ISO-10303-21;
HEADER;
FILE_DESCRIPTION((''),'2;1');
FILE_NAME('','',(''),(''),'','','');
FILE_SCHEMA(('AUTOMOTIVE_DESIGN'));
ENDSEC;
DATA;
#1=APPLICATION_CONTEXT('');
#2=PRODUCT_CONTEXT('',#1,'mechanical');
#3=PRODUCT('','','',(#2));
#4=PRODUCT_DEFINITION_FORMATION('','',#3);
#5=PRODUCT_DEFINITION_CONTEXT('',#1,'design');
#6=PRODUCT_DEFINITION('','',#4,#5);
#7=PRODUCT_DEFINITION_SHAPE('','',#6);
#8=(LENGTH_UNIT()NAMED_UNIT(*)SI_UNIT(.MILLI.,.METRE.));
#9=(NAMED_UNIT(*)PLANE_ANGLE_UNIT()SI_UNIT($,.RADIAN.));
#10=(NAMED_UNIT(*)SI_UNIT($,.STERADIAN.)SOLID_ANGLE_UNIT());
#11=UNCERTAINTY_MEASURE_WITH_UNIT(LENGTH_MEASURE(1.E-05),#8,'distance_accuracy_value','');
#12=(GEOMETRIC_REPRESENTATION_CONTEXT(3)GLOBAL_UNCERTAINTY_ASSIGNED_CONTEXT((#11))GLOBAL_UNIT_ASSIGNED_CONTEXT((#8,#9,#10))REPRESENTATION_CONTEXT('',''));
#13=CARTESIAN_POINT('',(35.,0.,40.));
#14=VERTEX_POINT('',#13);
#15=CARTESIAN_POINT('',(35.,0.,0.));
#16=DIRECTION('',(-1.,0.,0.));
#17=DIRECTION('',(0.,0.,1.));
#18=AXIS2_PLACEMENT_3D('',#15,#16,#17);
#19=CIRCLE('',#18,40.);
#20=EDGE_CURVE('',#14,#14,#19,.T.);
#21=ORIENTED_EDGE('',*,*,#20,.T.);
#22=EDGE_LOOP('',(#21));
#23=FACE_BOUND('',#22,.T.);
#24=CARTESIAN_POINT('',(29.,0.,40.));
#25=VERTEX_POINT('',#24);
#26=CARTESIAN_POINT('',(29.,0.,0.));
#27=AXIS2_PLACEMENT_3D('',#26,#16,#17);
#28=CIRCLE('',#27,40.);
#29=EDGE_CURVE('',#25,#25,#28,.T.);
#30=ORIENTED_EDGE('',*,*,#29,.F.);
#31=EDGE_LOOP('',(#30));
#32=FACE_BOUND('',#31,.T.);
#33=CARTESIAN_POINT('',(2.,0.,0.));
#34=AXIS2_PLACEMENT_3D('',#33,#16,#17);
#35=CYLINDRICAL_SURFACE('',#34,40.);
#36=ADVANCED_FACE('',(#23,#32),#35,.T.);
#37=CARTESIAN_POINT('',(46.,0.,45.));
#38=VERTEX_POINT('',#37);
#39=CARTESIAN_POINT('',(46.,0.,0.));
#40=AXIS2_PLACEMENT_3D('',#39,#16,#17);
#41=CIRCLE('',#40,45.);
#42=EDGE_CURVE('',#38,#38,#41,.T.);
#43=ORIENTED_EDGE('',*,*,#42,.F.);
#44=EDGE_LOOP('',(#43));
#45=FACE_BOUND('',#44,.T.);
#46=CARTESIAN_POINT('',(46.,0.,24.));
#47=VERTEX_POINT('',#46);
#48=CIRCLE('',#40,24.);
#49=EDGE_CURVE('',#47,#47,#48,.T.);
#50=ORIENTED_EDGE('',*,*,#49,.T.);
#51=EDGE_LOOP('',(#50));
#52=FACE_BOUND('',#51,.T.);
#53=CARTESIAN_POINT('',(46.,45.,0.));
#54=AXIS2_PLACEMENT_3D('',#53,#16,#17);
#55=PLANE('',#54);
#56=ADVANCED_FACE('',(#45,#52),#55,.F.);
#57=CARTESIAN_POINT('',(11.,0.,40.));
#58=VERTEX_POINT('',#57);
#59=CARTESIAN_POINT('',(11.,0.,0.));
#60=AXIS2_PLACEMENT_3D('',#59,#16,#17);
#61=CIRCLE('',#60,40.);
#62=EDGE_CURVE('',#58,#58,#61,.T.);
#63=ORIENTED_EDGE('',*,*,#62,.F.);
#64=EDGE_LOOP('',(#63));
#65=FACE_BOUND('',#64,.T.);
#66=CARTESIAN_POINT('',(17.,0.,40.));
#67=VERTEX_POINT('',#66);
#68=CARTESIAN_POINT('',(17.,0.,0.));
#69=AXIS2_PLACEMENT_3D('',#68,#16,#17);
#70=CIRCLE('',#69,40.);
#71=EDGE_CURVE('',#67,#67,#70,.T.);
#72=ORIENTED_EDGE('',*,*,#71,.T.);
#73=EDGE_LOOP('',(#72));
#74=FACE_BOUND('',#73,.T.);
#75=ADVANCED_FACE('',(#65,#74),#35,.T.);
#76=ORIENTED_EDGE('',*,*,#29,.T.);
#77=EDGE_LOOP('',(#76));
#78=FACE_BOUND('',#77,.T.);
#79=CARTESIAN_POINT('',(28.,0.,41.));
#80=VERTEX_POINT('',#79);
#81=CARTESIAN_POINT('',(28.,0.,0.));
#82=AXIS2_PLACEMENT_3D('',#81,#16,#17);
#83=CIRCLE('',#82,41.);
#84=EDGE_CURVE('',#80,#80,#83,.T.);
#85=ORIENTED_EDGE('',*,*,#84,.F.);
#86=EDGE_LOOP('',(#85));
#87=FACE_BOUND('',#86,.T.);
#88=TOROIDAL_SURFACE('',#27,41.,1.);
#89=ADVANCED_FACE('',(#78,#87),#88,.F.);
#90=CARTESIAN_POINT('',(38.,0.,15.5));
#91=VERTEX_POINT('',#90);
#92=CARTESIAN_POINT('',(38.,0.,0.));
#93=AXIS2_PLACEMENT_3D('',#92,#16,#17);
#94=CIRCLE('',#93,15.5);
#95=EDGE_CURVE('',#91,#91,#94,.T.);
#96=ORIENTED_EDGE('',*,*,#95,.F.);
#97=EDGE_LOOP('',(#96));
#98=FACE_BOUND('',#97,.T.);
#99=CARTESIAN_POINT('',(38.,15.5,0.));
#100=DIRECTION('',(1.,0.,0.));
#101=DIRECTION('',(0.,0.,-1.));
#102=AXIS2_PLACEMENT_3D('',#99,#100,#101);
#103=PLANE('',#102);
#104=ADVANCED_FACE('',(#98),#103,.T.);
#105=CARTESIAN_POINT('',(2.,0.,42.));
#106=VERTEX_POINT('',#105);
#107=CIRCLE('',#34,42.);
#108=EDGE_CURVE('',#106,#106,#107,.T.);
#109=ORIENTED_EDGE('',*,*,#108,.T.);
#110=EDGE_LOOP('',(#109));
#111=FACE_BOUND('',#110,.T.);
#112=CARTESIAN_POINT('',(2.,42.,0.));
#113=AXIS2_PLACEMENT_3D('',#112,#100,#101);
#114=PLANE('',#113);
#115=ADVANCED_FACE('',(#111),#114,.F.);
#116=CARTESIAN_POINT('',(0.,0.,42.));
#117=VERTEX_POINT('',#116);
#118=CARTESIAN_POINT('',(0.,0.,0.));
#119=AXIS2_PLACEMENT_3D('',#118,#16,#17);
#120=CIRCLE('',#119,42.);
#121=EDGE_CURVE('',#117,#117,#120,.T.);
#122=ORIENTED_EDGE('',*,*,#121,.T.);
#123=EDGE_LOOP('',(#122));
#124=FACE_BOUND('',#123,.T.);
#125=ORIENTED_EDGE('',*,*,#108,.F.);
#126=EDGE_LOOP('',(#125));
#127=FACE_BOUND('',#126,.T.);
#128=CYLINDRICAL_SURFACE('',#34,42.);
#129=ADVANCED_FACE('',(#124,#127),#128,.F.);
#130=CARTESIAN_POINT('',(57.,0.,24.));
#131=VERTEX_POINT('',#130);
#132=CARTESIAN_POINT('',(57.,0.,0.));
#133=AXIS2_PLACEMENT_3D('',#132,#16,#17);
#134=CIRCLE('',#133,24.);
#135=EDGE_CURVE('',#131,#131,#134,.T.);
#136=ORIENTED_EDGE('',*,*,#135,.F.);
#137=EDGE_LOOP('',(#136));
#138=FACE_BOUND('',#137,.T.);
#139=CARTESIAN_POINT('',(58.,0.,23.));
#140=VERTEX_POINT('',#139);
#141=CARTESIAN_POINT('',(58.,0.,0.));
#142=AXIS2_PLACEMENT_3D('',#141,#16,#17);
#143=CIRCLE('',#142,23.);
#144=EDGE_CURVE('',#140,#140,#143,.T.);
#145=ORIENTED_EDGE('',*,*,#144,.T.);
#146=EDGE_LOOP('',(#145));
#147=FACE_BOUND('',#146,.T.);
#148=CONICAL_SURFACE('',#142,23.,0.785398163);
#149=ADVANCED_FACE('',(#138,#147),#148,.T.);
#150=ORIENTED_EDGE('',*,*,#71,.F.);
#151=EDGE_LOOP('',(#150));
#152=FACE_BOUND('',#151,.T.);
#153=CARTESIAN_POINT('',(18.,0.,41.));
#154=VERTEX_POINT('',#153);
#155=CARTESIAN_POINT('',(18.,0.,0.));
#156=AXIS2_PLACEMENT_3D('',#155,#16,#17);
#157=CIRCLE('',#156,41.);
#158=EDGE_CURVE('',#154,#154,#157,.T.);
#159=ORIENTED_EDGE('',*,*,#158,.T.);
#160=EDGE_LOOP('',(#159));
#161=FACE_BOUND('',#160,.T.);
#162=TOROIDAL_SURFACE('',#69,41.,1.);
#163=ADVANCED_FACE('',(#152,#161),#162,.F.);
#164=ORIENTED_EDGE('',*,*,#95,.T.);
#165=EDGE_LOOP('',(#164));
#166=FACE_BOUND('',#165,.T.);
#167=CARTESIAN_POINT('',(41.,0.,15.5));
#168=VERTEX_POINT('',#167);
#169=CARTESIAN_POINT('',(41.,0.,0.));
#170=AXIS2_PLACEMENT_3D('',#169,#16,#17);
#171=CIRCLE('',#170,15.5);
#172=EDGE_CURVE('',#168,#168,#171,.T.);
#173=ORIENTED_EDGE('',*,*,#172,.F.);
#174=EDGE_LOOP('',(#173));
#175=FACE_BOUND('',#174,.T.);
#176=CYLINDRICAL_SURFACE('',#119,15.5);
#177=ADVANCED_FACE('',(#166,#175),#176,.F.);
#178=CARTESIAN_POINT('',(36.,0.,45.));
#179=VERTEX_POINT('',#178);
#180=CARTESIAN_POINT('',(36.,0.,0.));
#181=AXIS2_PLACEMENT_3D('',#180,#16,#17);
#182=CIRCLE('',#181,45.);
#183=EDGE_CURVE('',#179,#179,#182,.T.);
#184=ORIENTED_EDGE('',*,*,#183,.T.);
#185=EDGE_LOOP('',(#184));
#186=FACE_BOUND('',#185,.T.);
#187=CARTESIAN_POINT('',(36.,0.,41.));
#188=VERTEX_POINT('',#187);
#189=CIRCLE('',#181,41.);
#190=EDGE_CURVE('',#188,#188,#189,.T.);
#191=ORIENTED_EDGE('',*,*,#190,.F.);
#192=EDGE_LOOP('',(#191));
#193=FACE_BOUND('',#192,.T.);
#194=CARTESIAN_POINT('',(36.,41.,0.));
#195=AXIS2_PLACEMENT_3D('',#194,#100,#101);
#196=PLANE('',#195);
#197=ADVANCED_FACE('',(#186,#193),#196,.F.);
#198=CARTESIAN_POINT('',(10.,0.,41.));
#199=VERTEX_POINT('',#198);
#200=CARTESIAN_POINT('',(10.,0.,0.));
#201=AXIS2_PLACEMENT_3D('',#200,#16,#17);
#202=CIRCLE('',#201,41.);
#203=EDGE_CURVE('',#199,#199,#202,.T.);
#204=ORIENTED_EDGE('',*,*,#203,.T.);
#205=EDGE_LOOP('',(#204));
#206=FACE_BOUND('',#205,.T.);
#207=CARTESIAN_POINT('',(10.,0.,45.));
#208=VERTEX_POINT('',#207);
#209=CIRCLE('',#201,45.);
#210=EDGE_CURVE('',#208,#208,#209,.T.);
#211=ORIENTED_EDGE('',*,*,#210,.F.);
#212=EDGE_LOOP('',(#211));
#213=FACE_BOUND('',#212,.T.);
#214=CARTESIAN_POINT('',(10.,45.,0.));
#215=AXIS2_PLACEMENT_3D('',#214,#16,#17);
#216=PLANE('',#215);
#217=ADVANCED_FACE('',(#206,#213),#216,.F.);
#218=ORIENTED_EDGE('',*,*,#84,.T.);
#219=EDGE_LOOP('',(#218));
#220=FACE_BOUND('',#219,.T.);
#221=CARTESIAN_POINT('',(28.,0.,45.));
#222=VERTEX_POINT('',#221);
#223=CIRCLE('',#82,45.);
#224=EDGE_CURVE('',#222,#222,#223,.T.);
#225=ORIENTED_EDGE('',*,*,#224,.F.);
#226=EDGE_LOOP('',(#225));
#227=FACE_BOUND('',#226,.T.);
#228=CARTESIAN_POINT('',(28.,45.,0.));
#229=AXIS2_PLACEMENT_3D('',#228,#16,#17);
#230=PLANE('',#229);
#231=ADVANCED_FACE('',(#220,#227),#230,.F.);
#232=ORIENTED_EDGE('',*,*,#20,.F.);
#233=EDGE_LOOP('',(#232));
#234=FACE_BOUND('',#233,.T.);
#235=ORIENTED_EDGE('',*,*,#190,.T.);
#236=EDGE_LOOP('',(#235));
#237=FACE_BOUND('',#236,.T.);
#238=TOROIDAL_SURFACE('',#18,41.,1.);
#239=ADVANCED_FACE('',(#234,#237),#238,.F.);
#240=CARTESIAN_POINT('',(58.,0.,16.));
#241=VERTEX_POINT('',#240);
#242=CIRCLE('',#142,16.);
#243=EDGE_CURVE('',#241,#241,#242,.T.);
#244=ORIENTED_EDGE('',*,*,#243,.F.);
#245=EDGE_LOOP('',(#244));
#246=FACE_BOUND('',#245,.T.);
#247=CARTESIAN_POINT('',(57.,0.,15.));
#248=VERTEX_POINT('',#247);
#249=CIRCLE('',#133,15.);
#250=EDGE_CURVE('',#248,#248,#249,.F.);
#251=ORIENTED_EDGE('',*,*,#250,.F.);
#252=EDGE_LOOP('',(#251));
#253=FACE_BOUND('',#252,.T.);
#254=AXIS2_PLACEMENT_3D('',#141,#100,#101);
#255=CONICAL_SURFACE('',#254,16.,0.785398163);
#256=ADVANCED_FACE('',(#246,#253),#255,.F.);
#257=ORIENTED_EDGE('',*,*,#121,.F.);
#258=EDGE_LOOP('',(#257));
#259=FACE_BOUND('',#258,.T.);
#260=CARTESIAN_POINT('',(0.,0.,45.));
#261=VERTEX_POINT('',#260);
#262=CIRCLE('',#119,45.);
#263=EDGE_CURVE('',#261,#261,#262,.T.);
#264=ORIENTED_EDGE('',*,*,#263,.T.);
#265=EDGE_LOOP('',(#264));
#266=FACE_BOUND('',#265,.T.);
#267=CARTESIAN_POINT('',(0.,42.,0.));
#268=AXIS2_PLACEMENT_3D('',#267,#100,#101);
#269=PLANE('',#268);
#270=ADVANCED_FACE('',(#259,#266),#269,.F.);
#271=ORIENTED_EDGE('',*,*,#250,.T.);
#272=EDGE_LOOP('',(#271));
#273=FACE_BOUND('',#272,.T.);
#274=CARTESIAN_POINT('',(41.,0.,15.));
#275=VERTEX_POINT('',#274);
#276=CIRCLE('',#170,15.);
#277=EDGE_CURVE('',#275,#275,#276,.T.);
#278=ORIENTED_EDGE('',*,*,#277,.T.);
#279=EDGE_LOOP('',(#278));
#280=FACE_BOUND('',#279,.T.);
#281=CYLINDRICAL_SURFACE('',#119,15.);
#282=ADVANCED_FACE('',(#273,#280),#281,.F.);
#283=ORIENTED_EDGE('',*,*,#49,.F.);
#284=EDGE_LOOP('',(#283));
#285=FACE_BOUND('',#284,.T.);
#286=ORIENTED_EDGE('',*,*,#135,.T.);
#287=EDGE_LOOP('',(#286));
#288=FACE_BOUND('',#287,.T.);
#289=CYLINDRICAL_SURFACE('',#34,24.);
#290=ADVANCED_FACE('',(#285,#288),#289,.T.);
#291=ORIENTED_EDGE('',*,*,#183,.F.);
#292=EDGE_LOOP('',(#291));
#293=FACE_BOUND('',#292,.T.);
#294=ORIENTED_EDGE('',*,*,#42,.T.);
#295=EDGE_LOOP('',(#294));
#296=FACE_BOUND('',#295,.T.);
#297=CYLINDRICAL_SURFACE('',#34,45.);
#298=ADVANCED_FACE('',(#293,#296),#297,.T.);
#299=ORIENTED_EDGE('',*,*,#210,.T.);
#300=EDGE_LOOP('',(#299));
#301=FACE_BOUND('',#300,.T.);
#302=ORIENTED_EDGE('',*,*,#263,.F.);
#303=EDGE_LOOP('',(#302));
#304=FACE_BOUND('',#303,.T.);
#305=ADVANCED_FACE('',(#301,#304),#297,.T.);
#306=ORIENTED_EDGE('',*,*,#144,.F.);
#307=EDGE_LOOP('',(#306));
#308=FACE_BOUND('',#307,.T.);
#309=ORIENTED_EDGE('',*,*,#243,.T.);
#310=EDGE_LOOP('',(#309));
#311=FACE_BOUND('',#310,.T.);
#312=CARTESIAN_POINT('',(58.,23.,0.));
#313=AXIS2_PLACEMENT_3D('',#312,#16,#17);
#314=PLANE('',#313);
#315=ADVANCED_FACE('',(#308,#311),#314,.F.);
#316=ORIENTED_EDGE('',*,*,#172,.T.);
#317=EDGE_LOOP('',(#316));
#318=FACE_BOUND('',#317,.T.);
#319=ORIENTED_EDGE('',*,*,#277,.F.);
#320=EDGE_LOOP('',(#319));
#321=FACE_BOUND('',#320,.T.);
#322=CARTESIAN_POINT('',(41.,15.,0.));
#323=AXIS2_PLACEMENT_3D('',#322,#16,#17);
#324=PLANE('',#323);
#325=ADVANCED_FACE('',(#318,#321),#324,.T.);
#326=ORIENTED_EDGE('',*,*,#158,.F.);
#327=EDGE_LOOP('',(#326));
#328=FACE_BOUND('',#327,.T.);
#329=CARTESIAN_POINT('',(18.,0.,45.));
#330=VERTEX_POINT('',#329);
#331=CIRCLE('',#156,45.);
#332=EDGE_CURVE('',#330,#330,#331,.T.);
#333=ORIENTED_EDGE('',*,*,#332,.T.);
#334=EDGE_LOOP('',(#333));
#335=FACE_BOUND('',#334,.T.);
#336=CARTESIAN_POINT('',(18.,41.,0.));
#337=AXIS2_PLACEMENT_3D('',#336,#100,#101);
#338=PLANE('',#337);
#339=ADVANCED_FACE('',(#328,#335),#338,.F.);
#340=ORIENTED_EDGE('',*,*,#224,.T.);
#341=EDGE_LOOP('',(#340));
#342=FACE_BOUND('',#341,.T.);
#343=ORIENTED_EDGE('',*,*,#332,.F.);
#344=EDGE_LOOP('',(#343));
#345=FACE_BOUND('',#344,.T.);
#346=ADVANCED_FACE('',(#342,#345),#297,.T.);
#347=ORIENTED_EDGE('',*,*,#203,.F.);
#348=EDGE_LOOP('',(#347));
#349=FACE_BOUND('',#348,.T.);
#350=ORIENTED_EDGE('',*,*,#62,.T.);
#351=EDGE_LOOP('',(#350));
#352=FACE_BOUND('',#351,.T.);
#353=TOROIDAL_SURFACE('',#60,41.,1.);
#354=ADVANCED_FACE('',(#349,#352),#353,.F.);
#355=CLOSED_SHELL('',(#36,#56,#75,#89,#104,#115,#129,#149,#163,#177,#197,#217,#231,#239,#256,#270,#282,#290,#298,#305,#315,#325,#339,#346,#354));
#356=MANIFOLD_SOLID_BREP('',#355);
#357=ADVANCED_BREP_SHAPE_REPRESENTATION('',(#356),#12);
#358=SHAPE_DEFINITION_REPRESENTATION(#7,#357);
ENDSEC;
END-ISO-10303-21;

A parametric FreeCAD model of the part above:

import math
import FreeCAD as App
import Part
import Sketcher

V = App.Vector


def edges_at(feature, points):
    """Names of the edges that pass closest to the given points."""
    edges = feature.Shape.Edges
    near = lambda p: min(range(len(edges)), key=lambda i: edges[i].distToShape(Part.Vertex(*p))[0])
    return sorted({f"Edge{near(p) + 1}" for p in points})

doc = App.newDocument("Part")
params = doc.addObject("Spreadsheet::Sheet", "Params")
for row, (alias, value) in enumerate([
    ("sketch1_radius", "1 mm"),
    ("sketch1_width", "2 mm"),
    ("sketch1_width2", "56 mm"),
    ("sketch1_width3", "11 mm"),
    ("sketch1_width4", "10 mm"),
    ("revolution_angle", "360 deg"),
    ("sketch2_width", "17 mm"),
    ("sketch2_width2", "3 mm"),
    ("sketch2_height", "15 mm"),
    ("sketch2_height2", "0.5 mm"),
    ("groove_angle", "360 deg"),
    ("chamfer_size", "1 mm"),
], start=1):
    params.set(f"A{row}", alias)
    params.set(f"B{row}", "=" + value)
    params.setAlias(f"B{row}", alias)

body = doc.addObject("PartDesign::Body", "Body")

sketch1 = body.newObject("Sketcher::SketchObject", "Sketch")
sketch1.AttachmentSupport = (doc.getObject("XY_Plane"), [""])
sketch1.MapMode = "FlatFace"
sketch1.addGeometry(Part.LineSegment(V(0, 45, 0), V(0, 42, 0)), False)
sketch1.addGeometry(Part.LineSegment(V(0, 42, 0), V(2, 42, 0)), False)
sketch1.addGeometry(Part.LineSegment(V(2, 42, 0), V(2, 0, 0)), False)
sketch1.addGeometry(Part.LineSegment(V(2, 0, 0), V(58, 0, 0)), False)
sketch1.addGeometry(Part.LineSegment(V(58, 0, 0), V(58, 23, 0)), False)
sketch1.addGeometry(Part.LineSegment(V(58, 23, 0), V(57, 24, 0)), False)
sketch1.addGeometry(Part.LineSegment(V(57, 24, 0), V(46, 24, 0)), False)
sketch1.addGeometry(Part.LineSegment(V(46, 24, 0), V(46, 45, 0)), False)
sketch1.addGeometry(Part.LineSegment(V(46, 45, 0), V(36, 45, 0)), False)
sketch1.addGeometry(Part.LineSegment(V(36, 45, 0), V(36, 41, 0)), False)
sketch1.addGeometry(Part.ArcOfCircle(Part.Circle(V(35, 41, 0), V(0, 0, 1), 1), math.radians(-90), math.radians(0)), False)
sketch1.addGeometry(Part.LineSegment(V(35, 40, 0), V(29, 40, 0)), False)
sketch1.addGeometry(Part.ArcOfCircle(Part.Circle(V(29, 41, 0), V(0, 0, 1), 1), math.radians(-180), math.radians(-90)), False)
sketch1.addGeometry(Part.LineSegment(V(28, 41, 0), V(28, 45, 0)), False)
sketch1.addGeometry(Part.LineSegment(V(28, 45, 0), V(18, 45, 0)), False)
sketch1.addGeometry(Part.LineSegment(V(18, 45, 0), V(18, 41, 0)), False)
sketch1.addGeometry(Part.ArcOfCircle(Part.Circle(V(17, 41, 0), V(0, 0, 1), 1), math.radians(-90), math.radians(0)), False)
sketch1.addGeometry(Part.LineSegment(V(17, 40, 0), V(11, 40, 0)), False)
sketch1.addGeometry(Part.ArcOfCircle(Part.Circle(V(11, 41, 0), V(0, 0, 1), 1), math.radians(-180), math.radians(-90)), False)
sketch1.addGeometry(Part.LineSegment(V(10, 41, 0), V(10, 45, 0)), False)
sketch1.addGeometry(Part.LineSegment(V(10, 45, 0), V(0, 45, 0)), False)
sketch1.addConstraint(Sketcher.Constraint("Coincident", 0, 2, 1, 1))
sketch1.addConstraint(Sketcher.Constraint("Coincident", 1, 2, 2, 1))
sketch1.addConstraint(Sketcher.Constraint("Coincident", 2, 2, 3, 1))
sketch1.addConstraint(Sketcher.Constraint("Coincident", 3, 2, 4, 1))
sketch1.addConstraint(Sketcher.Constraint("Coincident", 4, 2, 5, 1))
sketch1.addConstraint(Sketcher.Constraint("Coincident", 5, 2, 6, 1))
sketch1.addConstraint(Sketcher.Constraint("Coincident", 6, 2, 7, 1))
sketch1.addConstraint(Sketcher.Constraint("Coincident", 7, 2, 8, 1))
sketch1.addConstraint(Sketcher.Constraint("Coincident", 8, 2, 9, 1))
sketch1.addConstraint(Sketcher.Constraint("Tangent", 9, 2, 10, 2))
sketch1.addConstraint(Sketcher.Constraint("Tangent", 10, 1, 11, 1))
sketch1.addConstraint(Sketcher.Constraint("Tangent", 11, 2, 12, 2))
sketch1.addConstraint(Sketcher.Constraint("Tangent", 12, 1, 13, 1))
sketch1.addConstraint(Sketcher.Constraint("Coincident", 13, 2, 14, 1))
sketch1.addConstraint(Sketcher.Constraint("Coincident", 14, 2, 15, 1))
sketch1.addConstraint(Sketcher.Constraint("Tangent", 15, 2, 16, 2))
sketch1.addConstraint(Sketcher.Constraint("Tangent", 16, 1, 17, 1))
sketch1.addConstraint(Sketcher.Constraint("Tangent", 17, 2, 18, 2))
sketch1.addConstraint(Sketcher.Constraint("Tangent", 18, 1, 19, 1))
sketch1.addConstraint(Sketcher.Constraint("Coincident", 19, 2, 20, 1))
sketch1.addConstraint(Sketcher.Constraint("Coincident", 20, 2, 0, 1))
sketch1.addConstraint(Sketcher.Constraint("Vertical", 0))
sketch1.addConstraint(Sketcher.Constraint("Horizontal", 1))
sketch1.addConstraint(Sketcher.Constraint("Vertical", 2))
sketch1.addConstraint(Sketcher.Constraint("Horizontal", 3))
sketch1.addConstraint(Sketcher.Constraint("Vertical", 4))
sketch1.addConstraint(Sketcher.Constraint("Horizontal", 6))
sketch1.addConstraint(Sketcher.Constraint("Vertical", 7))
sketch1.addConstraint(Sketcher.Constraint("Horizontal", 8))
sketch1.addConstraint(Sketcher.Constraint("Vertical", 9))
sketch1.addConstraint(Sketcher.Constraint("Horizontal", 11))
sketch1.addConstraint(Sketcher.Constraint("Vertical", 13))
sketch1.addConstraint(Sketcher.Constraint("Horizontal", 14))
sketch1.addConstraint(Sketcher.Constraint("Vertical", 15))
sketch1.addConstraint(Sketcher.Constraint("Horizontal", 17))
sketch1.addConstraint(Sketcher.Constraint("Vertical", 19))
sketch1.addConstraint(Sketcher.Constraint("Horizontal", 20))
sketch1.addConstraint(Sketcher.Constraint("Equal", 10, 12))
sketch1.addConstraint(Sketcher.Constraint("Equal", 12, 16))
sketch1.addConstraint(Sketcher.Constraint("Equal", 16, 18))
sketch1.addConstraint(Sketcher.Constraint("PointOnObject", 0, 2, -2))
sketch1.addConstraint(Sketcher.Constraint("PointOnObject", 2, 2, -1))
sketch1.addConstraint(Sketcher.Constraint("Horizontal", 12, 3, 16, 3))
sketch1.addConstraint(Sketcher.Constraint("Horizontal", 8, 2, 13, 2))
sketch1.addConstraint(Sketcher.Constraint("Horizontal", 14, 2, 19, 2))
sketch1.addConstraint(Sketcher.Constraint("Equal", 8, 14))
sketch1.addConstraint(Sketcher.Constraint("Equal", 11, 17))
sketch1.addConstraint(Sketcher.Constraint("Equal", 14, 20))
sketch1.addConstraint(Sketcher.Constraint("Radius", 10, 1.0))
sketch1.addConstraint(Sketcher.Constraint("DistanceX", 1, 1, 1, 2, 2.0))
sketch1.addConstraint(Sketcher.Constraint("DistanceX", 3, 1, 3, 2, 56.0))
sketch1.addConstraint(Sketcher.Constraint("DistanceX", 6, 2, 6, 1, 11.0))
sketch1.addConstraint(Sketcher.Constraint("DistanceX", 8, 2, 8, 1, 10.0))
sketch1.addConstraint(Sketcher.Constraint("DistanceX", 11, 2, 11, 1, 6.0))
sketch1.addConstraint(Sketcher.Constraint("DistanceY", 0, 2, 0, 1, 3.0))
sketch1.addConstraint(Sketcher.Constraint("DistanceY", 2, 2, 2, 1, 42.0))
sketch1.addConstraint(Sketcher.Constraint("DistanceY", 4, 1, 4, 2, 23.0))
sketch1.addConstraint(Sketcher.Constraint("DistanceY", 7, 1, 7, 2, 21.0))
sketch1.addConstraint(Sketcher.Constraint("DistanceY", 9, 2, 9, 1, 4.0))
sketch1.setExpression("Constraints[48]", "Params.sketch1_radius")
sketch1.setExpression("Constraints[49]", "Params.sketch1_width")
sketch1.setExpression("Constraints[50]", "Params.sketch1_width2")
sketch1.setExpression("Constraints[51]", "Params.sketch1_width3")
sketch1.setExpression("Constraints[52]", "Params.sketch1_width4")
revolution = body.newObject("PartDesign::Revolution", "Revolution")
revolution.Profile = sketch1
revolution.ReferenceAxis = (sketch1, ["H_Axis"])
revolution.setExpression("Angle", "Params.revolution_angle")

sketch2 = body.newObject("Sketcher::SketchObject", "Sketch001")
sketch2.AttachmentSupport = (doc.getObject("XY_Plane"), [""])
sketch2.MapMode = "FlatFace"
sketch2.addGeometry(Part.LineSegment(V(58, 0, 0), V(58, 15, 0)), False)
sketch2.addGeometry(Part.LineSegment(V(58, 15, 0), V(41, 15, 0)), False)
sketch2.addGeometry(Part.LineSegment(V(41, 15, 0), V(41, 15.5, 0)), False)
sketch2.addGeometry(Part.LineSegment(V(41, 15.5, 0), V(38, 15.5, 0)), False)
sketch2.addGeometry(Part.LineSegment(V(38, 15.5, 0), V(38, 0, 0)), False)
sketch2.addGeometry(Part.LineSegment(V(38, 0, 0), V(58, 0, 0)), False)
sketch2.addConstraint(Sketcher.Constraint("Coincident", 0, 2, 1, 1))
sketch2.addConstraint(Sketcher.Constraint("Coincident", 1, 2, 2, 1))
sketch2.addConstraint(Sketcher.Constraint("Coincident", 2, 2, 3, 1))
sketch2.addConstraint(Sketcher.Constraint("Coincident", 3, 2, 4, 1))
sketch2.addConstraint(Sketcher.Constraint("Coincident", 4, 2, 5, 1))
sketch2.addConstraint(Sketcher.Constraint("Coincident", 5, 2, 0, 1))
sketch2.addConstraint(Sketcher.Constraint("Vertical", 0))
sketch2.addConstraint(Sketcher.Constraint("Horizontal", 1))
sketch2.addConstraint(Sketcher.Constraint("Vertical", 2))
sketch2.addConstraint(Sketcher.Constraint("Horizontal", 3))
sketch2.addConstraint(Sketcher.Constraint("Vertical", 4))
sketch2.addConstraint(Sketcher.Constraint("Horizontal", 5))
sketch2.addConstraint(Sketcher.Constraint("PointOnObject", 4, 2, -1))
sketch2.addConstraint(Sketcher.Constraint("DistanceX", 1, 2, 1, 1, 17.0))
sketch2.addConstraint(Sketcher.Constraint("DistanceX", 3, 2, 3, 1, 3.0))
sketch2.addConstraint(Sketcher.Constraint("DistanceY", 0, 1, 0, 2, 15.0))
sketch2.addConstraint(Sketcher.Constraint("DistanceY", 2, 1, 2, 2, 0.5))
sketch2.addConstraint(Sketcher.Constraint("DistanceX", -1, 1, 0, 2, 58.0))
sketch2.setExpression("Constraints[13]", "Params.sketch2_width")
sketch2.setExpression("Constraints[14]", "Params.sketch2_width2")
sketch2.setExpression("Constraints[15]", "Params.sketch2_height")
sketch2.setExpression("Constraints[16]", "Params.sketch2_height2")
groove = body.newObject("PartDesign::Groove", "Groove")
groove.Profile = sketch2
groove.ReferenceAxis = (sketch2, ["H_Axis"])
groove.setExpression("Angle", "Params.groove_angle")
doc.recompute()

chamfer = body.newObject("PartDesign::Chamfer", "Chamfer")
chamfer.Base = (groove, edges_at(groove, [(58, 0, -15)]))
chamfer.setExpression("Size", "Params.chamfer_size")

doc.recompute()
